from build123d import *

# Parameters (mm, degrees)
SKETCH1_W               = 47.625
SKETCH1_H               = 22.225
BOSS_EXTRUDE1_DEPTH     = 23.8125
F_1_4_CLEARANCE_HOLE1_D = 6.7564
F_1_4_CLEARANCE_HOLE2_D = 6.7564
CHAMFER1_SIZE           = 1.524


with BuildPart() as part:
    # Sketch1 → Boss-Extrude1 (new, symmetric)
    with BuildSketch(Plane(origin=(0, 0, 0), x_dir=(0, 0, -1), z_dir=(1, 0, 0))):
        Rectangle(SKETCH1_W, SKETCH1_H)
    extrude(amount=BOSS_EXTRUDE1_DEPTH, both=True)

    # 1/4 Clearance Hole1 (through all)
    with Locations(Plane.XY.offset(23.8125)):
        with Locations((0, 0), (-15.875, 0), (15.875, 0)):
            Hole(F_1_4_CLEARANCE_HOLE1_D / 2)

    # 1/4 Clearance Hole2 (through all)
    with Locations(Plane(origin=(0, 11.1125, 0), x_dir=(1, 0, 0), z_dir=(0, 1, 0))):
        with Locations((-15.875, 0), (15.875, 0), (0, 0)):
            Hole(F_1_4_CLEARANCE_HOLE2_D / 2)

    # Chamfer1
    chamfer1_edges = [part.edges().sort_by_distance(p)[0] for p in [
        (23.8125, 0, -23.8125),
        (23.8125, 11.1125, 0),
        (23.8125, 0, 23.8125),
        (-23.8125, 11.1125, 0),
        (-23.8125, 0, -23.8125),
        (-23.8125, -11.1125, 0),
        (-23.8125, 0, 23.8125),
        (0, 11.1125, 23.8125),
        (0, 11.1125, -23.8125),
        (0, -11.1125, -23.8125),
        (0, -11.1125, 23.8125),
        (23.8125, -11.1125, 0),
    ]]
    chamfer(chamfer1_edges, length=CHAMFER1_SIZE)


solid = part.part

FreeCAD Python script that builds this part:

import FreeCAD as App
import Part
import Sketcher
Q = App.Units.Quantity


def edges_at(feature, points):
    """Names of the edges that pass closest to the given points."""
    edges = feature.Shape.Edges
    near = lambda p: min(range(len(edges)), key=lambda i: edges[i].distToShape(Part.Vertex(*p))[0])
    return sorted({f"Edge{near(p) + 1}" for p in points})

doc = App.newDocument("Part")
body = doc.addObject("PartDesign::Body", "Body")

# Sketch on YZ plane
sketch1 = doc.addObject("Sketcher::SketchObject", "Sketch")
body.addObject(sketch1)
sketch1.AttachmentSupport = (doc.YZ_Plane, [""])
sketch1.MapMode = "FlatFace"
sketch1.addGeometry(Part.LineSegment(App.Vector(11, 24, 0), App.Vector(-11, 24, 0)), False)
sketch1.addGeometry(Part.LineSegment(App.Vector(-11, 24, 0), App.Vector(-11, -24, 0)), False)
sketch1.addGeometry(Part.LineSegment(App.Vector(-11, -24, 0), App.Vector(11, -24, 0)), False)
sketch1.addGeometry(Part.LineSegment(App.Vector(11, -24, 0), App.Vector(11, 24, 0)), False)
sketch1.addConstraint(Sketcher.Constraint("Coincident", 0, 2, 1, 1))
sketch1.addConstraint(Sketcher.Constraint("Coincident", 1, 2, 2, 1))
sketch1.addConstraint(Sketcher.Constraint("Coincident", 2, 2, 3, 1))
sketch1.addConstraint(Sketcher.Constraint("Coincident", 3, 2, 0, 1))
sketch1.addConstraint(Sketcher.Constraint("Horizontal", 0))
sketch1.addConstraint(Sketcher.Constraint("Vertical", 1))
sketch1.addConstraint(Sketcher.Constraint("Horizontal", 2))
sketch1.addConstraint(Sketcher.Constraint("Vertical", 3))
sketch1.addConstraint(Sketcher.Constraint("Symmetric", 0, 2, 2, 2, -1, 1))
sketch1.addConstraint(Sketcher.Constraint("DistanceX", 0, 2, 0, 1, Q("0.875 in")))
sketch1.addConstraint(Sketcher.Constraint("DistanceY", 1, 2, 1, 1, Q("1.875 in")))
pad1 = doc.addObject("PartDesign::Pad", "Pad")
body.addObject(pad1)
pad1.Profile = sketch1
pad1.Length = Q("1.875 in")
pad1.Midplane = True

# Sketch on XY plane
sketch2 = doc.addObject("Sketcher::SketchObject", "Sketch001")
body.addObject(sketch2)
sketch2.AttachmentSupport = (doc.XY_Plane, [""])
sketch2.MapMode = "FlatFace"
sketch2.AttachmentOffset = App.Placement(App.Vector(0, 0, 0.9375 * 25.4), App.Rotation())
sketch2.addGeometry(Part.Circle(App.Vector(0, 0, 0), App.Vector(0, 0, 1), 3.4), False)
sketch2.addGeometry(Part.Circle(App.Vector(-15.9, 0, 0), App.Vector(0, 0, 1), 3.4), False)
sketch2.addGeometry(Part.Circle(App.Vector(15.9, 0, 0), App.Vector(0, 0, 1), 3.4), False)
sketch2.addConstraint(Sketcher.Constraint("Coincident", 0, 3, -1, 1))
sketch2.addConstraint(Sketcher.Constraint("Equal", 0, 1))
sketch2.addConstraint(Sketcher.Constraint("Equal", 1, 2))
sketch2.addConstraint(Sketcher.Constraint("Symmetric", 1, 3, 2, 3, -1, 1))
sketch2.addConstraint(Sketcher.Constraint("PointOnObject", 1, 3, -1))
sketch2.addConstraint(Sketcher.Constraint("Diameter", 0, Q("0.266 in")))
sketch2.addConstraint(Sketcher.Constraint("DistanceX", 1, 3, 2, 3, Q("1.25 in")))
doc.recompute()
hole = doc.addObject("PartDesign::Hole", "Hole")
body.addObject(hole)
hole.Profile = sketch2
hole.ThreadType = "None"
hole.Diameter = Q("0.266 in")
hole.DepthType = "ThroughAll"

# Sketch on XZ plane
sketch3 = doc.addObject("Sketcher::SketchObject", "Sketch002")
body.addObject(sketch3)
sketch3.AttachmentSupport = (doc.XZ_Plane, [""])
sketch3.MapMode = "FlatFace"
sketch3.AttachmentOffset = App.Placement(App.Vector(0, 0, -0.4375 * 25.4), App.Rotation())
sketch3.addGeometry(Part.Circle(App.Vector(-15.9, 0, 0), App.Vector(0, 0, 1), 3.4), False)
sketch3.addGeometry(Part.Circle(App.Vector(15.9, 0, 0), App.Vector(0, 0, 1), 3.4), False)
sketch3.addGeometry(Part.Circle(App.Vector(0, 0, 0), App.Vector(0, 0, 1), 3.4), False)
sketch3.addConstraint(Sketcher.Constraint("Coincident", 2, 3, -1, 1))
sketch3.addConstraint(Sketcher.Constraint("Equal", 0, 1))
sketch3.addConstraint(Sketcher.Constraint("Equal", 1, 2))
sketch3.addConstraint(Sketcher.Constraint("Symmetric", 0, 3, 1, 3, -1, 1))
sketch3.addConstraint(Sketcher.Constraint("PointOnObject", 0, 3, -1))
sketch3.addConstraint(Sketcher.Constraint("Diameter", 0, Q("0.266 in")))
sketch3.addConstraint(Sketcher.Constraint("DistanceX", 0, 3, 1, 3, Q("1.25 in")))
doc.recompute()
hole2 = doc.addObject("PartDesign::Hole", "Hole001")
body.addObject(hole2)
hole2.Profile = sketch3
hole2.ThreadType = "None"
hole2.Diameter = Q("0.266 in")
hole2.DepthType = "ThroughAll"
hole2.Reversed = True
doc.recompute()

chamfer = doc.addObject("PartDesign::Chamfer", "Chamfer")
body.addObject(chamfer)
chamfer.Base = (hole2, edges_at(hole2, [
    (23.812, 0, -23.812),
    (23.812, 11.113, 0),
    (23.812, 0, 23.812),
    (-23.812, 11.113, 0),
    (-23.812, 0, -23.812),
    (-23.812, -11.113, 0),
    (-23.812, 0, 23.812),
    (0, 11.113, 23.812),
    (0, 11.113, -23.812),
    (0, -11.113, -23.812),
    (0, -11.113, 23.812),
    (23.812, -11.113, 0),
]))
chamfer.Size = Q("0.06 in")

doc.recompute()
